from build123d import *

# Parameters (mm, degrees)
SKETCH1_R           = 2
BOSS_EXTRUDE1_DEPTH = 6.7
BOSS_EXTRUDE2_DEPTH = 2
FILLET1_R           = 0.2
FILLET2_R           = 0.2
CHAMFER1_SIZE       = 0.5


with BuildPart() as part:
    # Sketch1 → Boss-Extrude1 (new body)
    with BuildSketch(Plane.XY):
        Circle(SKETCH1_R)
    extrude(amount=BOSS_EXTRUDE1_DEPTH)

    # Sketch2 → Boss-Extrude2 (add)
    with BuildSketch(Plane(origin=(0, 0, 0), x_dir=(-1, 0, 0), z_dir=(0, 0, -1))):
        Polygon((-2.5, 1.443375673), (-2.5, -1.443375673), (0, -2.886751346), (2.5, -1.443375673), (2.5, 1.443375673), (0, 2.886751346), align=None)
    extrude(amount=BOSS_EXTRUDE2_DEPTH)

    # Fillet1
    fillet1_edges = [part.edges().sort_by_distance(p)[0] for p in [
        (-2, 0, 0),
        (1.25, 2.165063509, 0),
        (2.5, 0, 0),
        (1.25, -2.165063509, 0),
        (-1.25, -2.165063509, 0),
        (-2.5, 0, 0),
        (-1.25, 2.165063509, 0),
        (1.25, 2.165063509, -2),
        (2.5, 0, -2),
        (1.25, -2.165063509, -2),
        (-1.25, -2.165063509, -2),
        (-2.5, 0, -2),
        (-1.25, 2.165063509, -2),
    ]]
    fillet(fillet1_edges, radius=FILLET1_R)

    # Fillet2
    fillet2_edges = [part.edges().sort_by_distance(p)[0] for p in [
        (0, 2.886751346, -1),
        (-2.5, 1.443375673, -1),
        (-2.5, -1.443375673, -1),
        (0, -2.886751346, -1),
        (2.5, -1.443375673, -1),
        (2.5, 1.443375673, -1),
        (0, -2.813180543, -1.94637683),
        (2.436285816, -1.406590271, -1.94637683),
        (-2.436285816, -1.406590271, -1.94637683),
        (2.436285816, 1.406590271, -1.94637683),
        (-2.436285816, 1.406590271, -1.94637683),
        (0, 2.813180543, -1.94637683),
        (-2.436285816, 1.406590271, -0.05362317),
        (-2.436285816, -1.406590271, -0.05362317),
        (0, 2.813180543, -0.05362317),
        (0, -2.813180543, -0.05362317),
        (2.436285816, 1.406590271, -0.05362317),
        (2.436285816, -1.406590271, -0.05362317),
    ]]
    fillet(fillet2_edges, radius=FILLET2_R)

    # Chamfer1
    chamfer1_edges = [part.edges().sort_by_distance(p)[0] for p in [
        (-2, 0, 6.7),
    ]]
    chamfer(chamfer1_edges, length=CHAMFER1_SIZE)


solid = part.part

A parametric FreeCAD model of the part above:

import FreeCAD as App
import Part
import Sketcher
from FreeCAD import Vector
Q = App.Units.Quantity


def edges_at(feature, points):
    """Names of the edges that pass closest to the given points."""
    edges = feature.Shape.Edges
    near = lambda p: min(range(len(edges)), key=lambda i: edges[i].distToShape(Part.Vertex(*p))[0])
    return sorted({f"Edge{near(p) + 1}" for p in points})


def add_polygon(sketch, points):
    """Adds a closed chain of lines whose ends are joined by coincident constraints."""
    first, n = sketch.GeometryCount, len(points)
    for a, b in zip(points, points[1:] + points[:1]):
        sketch.addGeometry(Part.LineSegment(App.Vector(*a, 0), App.Vector(*b, 0)), False)
    for i in range(n):
        sketch.addConstraint(Sketcher.Constraint("Coincident", first + i, 2, first + (i + 1) % n, 1))

doc = App.newDocument("Part")
body = doc.addObject("PartDesign::Body", "Body")

sketch1 = body.newObject("Sketcher::SketchObject", "Sketch")
sketch1.AttachmentSupport = (doc.getObject("XY_Plane"), [""])
sketch1.MapMode = "FlatFace"
sketch1.addGeometry(Part.Circle(Vector(0, 0, 0), Vector(0, 0, 1), 2), False)
sketch1.addConstraint(Sketcher.Constraint("Coincident", 0, 3, -1, 1))
sketch1.addConstraint(Sketcher.Constraint("Diameter", 0, 4.0))
pad1 = body.newObject("PartDesign::Pad", "Pad")
pad1.Profile = sketch1
pad1.Length = 6.7

sketch2 = body.newObject("Sketcher::SketchObject", "Sketch001")
sketch2.AttachmentSupport = (doc.getObject("XY_Plane"), [""])
sketch2.MapMode = "FlatFace"
add_polygon(sketch2, [(2.5, 1.4), (2.5, -1.4), (0, -2.9), (-2.5, -1.4), (-2.5, 1.4), (0, 2.9)])
sketch2.addConstraint(Sketcher.Constraint("Vertical", 0))
sketch2.addConstraint(Sketcher.Constraint("Vertical", 3))
sketch2.addConstraint(Sketcher.Constraint("Symmetric", 0, 2, 3, 2, -1, 1))
sketch2.addConstraint(Sketcher.Constraint("Symmetric", 1, 2, 4, 2, -1, 1))
sketch2.addConstraint(Sketcher.Constraint("PointOnObject", 1, 2, -2))
sketch2.addConstraint(Sketcher.Constraint("Parallel", 2, 5))
sketch2.addConstraint(Sketcher.Constraint("Horizontal", 0, 2, 2, 2))
sketch2.addConstraint(Sketcher.Constraint("Angle", 1, Q("-150 deg")))
sketch2.addConstraint(Sketcher.Constraint("DistanceX", 2, 2, 0, 2, 5.0))
sketch2.addConstraint(Sketcher.Constraint("DistanceY", 0, 2, 0, 1, 2.886751))
pad2 = body.newObject("PartDesign::Pad", "Pad001")
pad2.Profile = sketch2
pad2.Length = 2
pad2.Reversed = True
doc.recompute()

fillet = body.newObject("PartDesign::Fillet", "Fillet")
fillet.Base = (pad2, edges_at(pad2, [
    (-2, 0, 0),
    (1.25, 2.165, 0),
    (2.5, 0, 0),
    (1.25, -2.165, 0),
    (-1.25, -2.165, 0),
    (-2.5, 0, 0),
    (-1.25, 2.165, 0),
    (1.25, 2.165, -2),
    (2.5, 0, -2),
    (1.25, -2.165, -2),
    (-1.25, -2.165, -2),
    (-2.5, 0, -2),
    (-1.25, 2.165, -2),
]))
fillet.Radius = 0.2
doc.recompute()

fillet2 = body.newObject("PartDesign::Fillet", "Fillet001")
fillet2.Base = (fillet, edges_at(fillet, [
    (0, 2.887, -1),
    (-2.5, 1.443, -1),
    (-2.5, -1.443, -1),
    (0, -2.887, -1),
    (2.5, -1.443, -1),
    (2.5, 1.443, -1),
    (0, -2.813, -1.946),
    (2.436, -1.407, -1.946),
    (-2.436, -1.407, -1.946),
    (2.436, 1.407, -1.946),
    (-2.436, 1.407, -1.946),
    (0, 2.813, -1.946),
    (-2.436, 1.407, -0.054),
    (-2.436, -1.407, -0.054),
    (0, 2.813, -0.054),
    (0, -2.813, -0.054),
    (2.436, 1.407, -0.054),
    (2.436, -1.407, -0.054),
]))
fillet2.Radius = 0.2
doc.recompute()

chamfer = body.newObject("PartDesign::Chamfer", "Chamfer")
chamfer.Base = (fillet2, edges_at(fillet2, [(-2, 0, 6.7)]))
chamfer.Size = 0.5

doc.recompute()
